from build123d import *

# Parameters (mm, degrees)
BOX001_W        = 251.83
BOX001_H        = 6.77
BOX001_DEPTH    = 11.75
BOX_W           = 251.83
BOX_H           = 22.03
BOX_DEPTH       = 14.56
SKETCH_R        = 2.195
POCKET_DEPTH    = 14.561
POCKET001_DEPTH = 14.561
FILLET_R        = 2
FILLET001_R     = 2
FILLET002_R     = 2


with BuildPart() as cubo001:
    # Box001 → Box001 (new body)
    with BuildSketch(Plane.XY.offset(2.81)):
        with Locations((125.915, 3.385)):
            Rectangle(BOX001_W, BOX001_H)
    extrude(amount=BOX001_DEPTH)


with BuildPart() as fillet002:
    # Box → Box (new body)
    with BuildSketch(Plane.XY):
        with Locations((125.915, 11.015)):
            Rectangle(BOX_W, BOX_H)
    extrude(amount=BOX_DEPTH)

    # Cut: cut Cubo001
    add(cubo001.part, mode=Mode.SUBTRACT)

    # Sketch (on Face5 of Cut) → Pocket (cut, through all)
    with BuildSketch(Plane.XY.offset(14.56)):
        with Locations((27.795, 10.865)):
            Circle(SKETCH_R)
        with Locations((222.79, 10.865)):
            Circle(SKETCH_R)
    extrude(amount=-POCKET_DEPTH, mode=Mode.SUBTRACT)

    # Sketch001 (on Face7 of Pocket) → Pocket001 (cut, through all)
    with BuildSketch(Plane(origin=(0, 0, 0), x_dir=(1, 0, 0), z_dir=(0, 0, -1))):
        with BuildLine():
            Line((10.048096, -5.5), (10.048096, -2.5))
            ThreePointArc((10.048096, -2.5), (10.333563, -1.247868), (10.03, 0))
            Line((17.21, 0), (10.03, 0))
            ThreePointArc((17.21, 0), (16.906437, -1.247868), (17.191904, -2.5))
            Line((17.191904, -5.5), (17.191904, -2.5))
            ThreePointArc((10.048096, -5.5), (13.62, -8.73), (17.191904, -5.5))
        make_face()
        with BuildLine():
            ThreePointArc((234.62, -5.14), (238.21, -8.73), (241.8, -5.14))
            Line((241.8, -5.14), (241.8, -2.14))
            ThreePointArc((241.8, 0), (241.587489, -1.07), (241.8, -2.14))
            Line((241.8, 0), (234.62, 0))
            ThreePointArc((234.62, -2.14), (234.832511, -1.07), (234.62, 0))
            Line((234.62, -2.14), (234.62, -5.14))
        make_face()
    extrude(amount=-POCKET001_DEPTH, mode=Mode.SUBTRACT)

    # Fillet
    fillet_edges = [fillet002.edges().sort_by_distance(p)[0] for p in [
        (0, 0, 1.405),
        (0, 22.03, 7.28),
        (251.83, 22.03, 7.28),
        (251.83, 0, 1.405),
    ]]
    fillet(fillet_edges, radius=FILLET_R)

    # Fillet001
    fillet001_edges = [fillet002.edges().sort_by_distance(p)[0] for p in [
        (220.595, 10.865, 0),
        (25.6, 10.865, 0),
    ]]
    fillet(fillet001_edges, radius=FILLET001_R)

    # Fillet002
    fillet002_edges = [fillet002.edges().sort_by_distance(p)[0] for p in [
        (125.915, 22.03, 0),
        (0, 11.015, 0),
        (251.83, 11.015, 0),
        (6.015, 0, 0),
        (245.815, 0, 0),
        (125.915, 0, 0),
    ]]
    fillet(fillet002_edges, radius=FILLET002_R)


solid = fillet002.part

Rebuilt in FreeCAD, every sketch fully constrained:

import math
import FreeCAD as App
import Part
import Sketcher

V = App.Vector


def edges_at(feature, points):
    """Names of the edges that pass closest to the given points."""
    edges = feature.Shape.Edges
    near = lambda p: min(range(len(edges)), key=lambda i: edges[i].distToShape(Part.Vertex(*p))[0])
    return sorted({f"Edge{near(p) + 1}" for p in points})

doc = App.newDocument("Part")
body = doc.addObject("PartDesign::Body", "Body")

# Sketch on XY plane
sketch1 = body.newObject("Sketcher::SketchObject", "Sketch")
sketch1.AttachmentSupport = (doc.getObject("XY_Plane"), [""])
sketch1.MapMode = "FlatFace"
sketch1.AttachmentOffset = App.Placement(V(0, 0, 2.81), App.Rotation())
sketch1.addGeometry([
    Part.LineSegment(V(0, 7, 0), V(0, 0, 0)),
    Part.LineSegment(V(0, 0, 0), V(252, 0, 0)),
    Part.LineSegment(V(252, 0, 0), V(252, 7, 0)),
    Part.LineSegment(V(252, 7, 0), V(0, 7, 0)),
], False)
sketch1.addConstraint([
    Sketcher.Constraint("Coincident", 0, 2, 1, 1),
    Sketcher.Constraint("Coincident", 1, 2, 2, 1),
    Sketcher.Constraint("Coincident", 2, 2, 3, 1),
    Sketcher.Constraint("Coincident", 3, 2, 0, 1),
    Sketcher.Constraint("Vertical", 0),
    Sketcher.Constraint("Horizontal", 1),
    Sketcher.Constraint("Vertical", 2),
    Sketcher.Constraint("Horizontal", 3),
    Sketcher.Constraint("Coincident", 0, 2, -1, 1),
    Sketcher.Constraint("DistanceX", 1, 1, 1, 2, 251.83),
    Sketcher.Constraint("DistanceY", 0, 2, 0, 1, 6.77),
])
pad1 = body.newObject("PartDesign::Pad", "Pad")
pad1.Profile = sketch1
pad1.Length = 11.75
body2 = doc.addObject("PartDesign::Body", "Body001")

# Sketch on XY plane
sketch2 = body2.newObject("Sketcher::SketchObject", "Sketch001")
sketch2.AttachmentSupport = (doc.getObject("XY_Plane001"), [""])
sketch2.MapMode = "FlatFace"
sketch2.addGeometry([
    Part.LineSegment(V(0, 22, 0), V(0, 0, 0)),
    Part.LineSegment(V(0, 0, 0), V(252, 0, 0)),
    Part.LineSegment(V(252, 0, 0), V(252, 22, 0)),
    Part.LineSegment(V(252, 22, 0), V(0, 22, 0)),
], False)
sketch2.addConstraint([
    Sketcher.Constraint("Coincident", 0, 2, 1, 1),
    Sketcher.Constraint("Coincident", 1, 2, 2, 1),
    Sketcher.Constraint("Coincident", 2, 2, 3, 1),
    Sketcher.Constraint("Coincident", 3, 2, 0, 1),
    Sketcher.Constraint("Vertical", 0),
    Sketcher.Constraint("Horizontal", 1),
    Sketcher.Constraint("Vertical", 2),
    Sketcher.Constraint("Horizontal", 3),
    Sketcher.Constraint("Coincident", 0, 2, -1, 1),
    Sketcher.Constraint("DistanceX", 1, 1, 1, 2, 251.83),
    Sketcher.Constraint("DistanceY", 0, 2, 0, 1, 22.03),
])
pad2 = body2.newObject("PartDesign::Pad", "Pad001")
pad2.Profile = sketch2
pad2.Length = 14.56
doc.recompute()

boolean = body2.newObject("PartDesign::Boolean", "Boolean")
boolean.Type = "Cut"
boolean.addObjects([body])

# Sketch on XY plane
sketch3 = body2.newObject("Sketcher::SketchObject", "Sketch002")
sketch3.AttachmentSupport = (doc.getObject("XY_Plane001"), [""])
sketch3.MapMode = "FlatFace"
sketch3.AttachmentOffset = App.Placement(V(0, 0, 14.56), App.Rotation())
sketch3.addGeometry([
    Part.Circle(V(27.8, 10.9, 0), V(0, 0, 1), 2.2),
    Part.Circle(V(222.8, 10.9, 0), V(0, 0, 1), 2.2),
], False)
sketch3.addConstraint([
    Sketcher.Constraint("Equal", 0, 1),
    Sketcher.Constraint("Horizontal", 0, 3, 1, 3),
    Sketcher.Constraint("Diameter", 0, 4.39),
    Sketcher.Constraint("DistanceX", -1, 1, 1, 3, 222.79),
    Sketcher.Constraint("DistanceX", -1, 1, 0, 3, 27.795),
    Sketcher.Constraint("DistanceY", -1, 1, 0, 3, 10.865),
])
pocket1 = body2.newObject("PartDesign::Pocket", "Pocket")
pocket1.Profile = sketch3
pocket1.Type = "ThroughAll"

# Sketch on XY plane
sketch4 = body2.newObject("Sketcher::SketchObject", "Sketch003")
sketch4.AttachmentSupport = (doc.getObject("XY_Plane001"), [""])
sketch4.MapMode = "FlatFace"
sketch4.addGeometry([
    Part.LineSegment(V(10, 2.5, 0), V(10, 5.5, 0)),  # 0
    Part.ArcOfCircle(Part.Circle(V(13.6, 5.1, 0), V(0, 0, 1), 3.6), math.radians(6), math.radians(174)),  # 1
    Part.LineSegment(V(17.2, 5.5, 0), V(17.2, 2.5, 0)),  # 2
    Part.ArcOfCircle(Part.Circle(V(19.7, 1.3, 0), V(0, 0, 1), 2.8), math.radians(154), math.radians(207)),  # 3
    Part.LineSegment(V(17.2, 0, 0), V(10, 0, 0)),  # 4
    Part.ArcOfCircle(Part.Circle(V(7.5, 1.3, 0), V(0, 0, 1), 2.8), math.radians(-27), math.radians(26)),  # 5
    Part.ArcOfCircle(Part.Circle(V(238.2, 5.1, 0), V(0, 0, 1), 3.6), math.radians(0), math.radians(180)),  # 6
    Part.LineSegment(V(241.8, 5.1, 0), V(241.8, 2.1, 0)),  # 7
    Part.ArcOfCircle(Part.Circle(V(244.4, 1.1, 0), V(0, 0, 1), 2.8), math.radians(158), math.radians(202)),  # 8
    Part.LineSegment(V(241.8, 0, 0), V(234.6, 0, 0)),  # 9
    Part.ArcOfCircle(Part.Circle(V(232, 1.1, 0), V(0, 0, 1), 2.8), math.radians(-22), math.radians(22)),  # 10
    Part.LineSegment(V(234.6, 2.1, 0), V(234.6, 5.1, 0)),  # 11
], False)
sketch4.addConstraint([
    Sketcher.Constraint("Coincident", 0, 2, 1, 2),
    Sketcher.Constraint("Coincident", 1, 1, 2, 1),
    Sketcher.Constraint("Coincident", 2, 2, 3, 1),
    Sketcher.Constraint("Coincident", 3, 2, 4, 1),
    Sketcher.Constraint("Coincident", 4, 2, 5, 1),
    Sketcher.Constraint("Coincident", 5, 2, 0, 1),
    Sketcher.Constraint("Tangent", 6, 1, 7, 1),
    Sketcher.Constraint("Coincident", 7, 2, 8, 1),
    Sketcher.Constraint("Coincident", 8, 2, 9, 1),
    Sketcher.Constraint("Coincident", 9, 2, 10, 1),
    Sketcher.Constraint("Coincident", 10, 2, 11, 1),
    Sketcher.Constraint("Tangent", 11, 2, 6, 2),
    Sketcher.Constraint("Vertical", 0),
    Sketcher.Constraint("Vertical", 2),
    Sketcher.Constraint("Horizontal", 4),
    Sketcher.Constraint("Vertical", 7),
    Sketcher.Constraint("Horizontal", 9),
    Sketcher.Constraint("Vertical", 11),
    Sketcher.Constraint("Equal", 3, 5),
    Sketcher.Constraint("Equal", 1, 6),
    Sketcher.Constraint("Equal", 5, 8),
    Sketcher.Constraint("Equal", 8, 10),
    Sketcher.Constraint("PointOnObject", 3, 2, -1),
    Sketcher.Constraint("PointOnObject", 8, 2, -1),
    Sketcher.Constraint("Horizontal", 3, 3, 5, 3),
    Sketcher.Constraint("Horizontal", 1, 3, 6, 3),
    Sketcher.Constraint("Horizontal", 8, 3, 10, 3),
    Sketcher.Constraint("Horizontal", 0, 2, 1, 1),
    Sketcher.Constraint("Horizontal", 2, 2, 5, 2),
    Sketcher.Constraint("Horizontal", 7, 2, 10, 2),
    Sketcher.Constraint("Vertical", 7, 2, 8, 2),
    Sketcher.Constraint("Equal", 4, 9),
    Sketcher.Constraint("Equal", 2, 7),
    Sketcher.Constraint("Radius", 8, 2.799998),
    Sketcher.Constraint("DistanceY", 0, 1, 0, 2, 3.0),
    Sketcher.Constraint("Radius", 1, 3.59),
    Sketcher.Constraint("DistanceY", -1, 1, 0, 2, 5.5),
    Sketcher.Constraint("DistanceX", -1, 1, 6, 1, 241.8),
    Sketcher.Constraint("DistanceX", -1, 1, 1, 3, 13.62),
    Sketcher.Constraint("DistanceY", -1, 1, 1, 3, 5.14),
])
pocket2 = body2.newObject("PartDesign::Pocket", "Pocket001")
pocket2.Profile = sketch4
pocket2.Type = "ThroughAll"
pocket2.Reversed = True
doc.recompute()

fillet = body2.newObject("PartDesign::Fillet", "Fillet")
fillet.Base = (pocket2, edges_at(pocket2, [
    (0, 0, 1.405),
    (0, 22.03, 7.28),
    (251.83, 22.03, 7.28),
    (251.83, 0, 1.405),
]))
fillet.Radius = 2
doc.recompute()

fillet2 = body2.newObject("PartDesign::Fillet", "Fillet001")
fillet2.Base = (fillet, edges_at(fillet, [(220.595, 10.865, 0), (25.6, 10.865, 0)]))
fillet2.Radius = 2
doc.recompute()

fillet3 = body2.newObject("PartDesign::Fillet", "Fillet002")
fillet3.Base = (fillet2, edges_at(fillet2, [
    (125.915, 22.03, 0),
    (0, 11.015, 0),
    (251.83, 11.015, 0),
    (6.015, 0, 0),
    (245.815, 0, 0),
    (125.915, 0, 0),
]))
fillet3.Radius = 2

doc.recompute()
